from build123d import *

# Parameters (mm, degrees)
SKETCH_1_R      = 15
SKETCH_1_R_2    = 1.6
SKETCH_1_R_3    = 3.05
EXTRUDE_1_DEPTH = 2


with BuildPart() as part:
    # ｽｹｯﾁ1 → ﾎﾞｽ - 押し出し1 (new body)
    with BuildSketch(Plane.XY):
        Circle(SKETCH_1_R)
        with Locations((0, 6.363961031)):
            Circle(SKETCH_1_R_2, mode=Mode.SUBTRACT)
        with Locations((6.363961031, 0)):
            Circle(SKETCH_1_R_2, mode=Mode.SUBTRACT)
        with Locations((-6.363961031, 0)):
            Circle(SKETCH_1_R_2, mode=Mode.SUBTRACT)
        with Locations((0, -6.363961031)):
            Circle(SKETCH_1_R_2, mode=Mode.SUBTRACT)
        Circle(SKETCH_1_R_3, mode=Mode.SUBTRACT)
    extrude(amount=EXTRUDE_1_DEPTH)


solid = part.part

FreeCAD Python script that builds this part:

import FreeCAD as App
import Part
import Sketcher
from FreeCAD import Vector
Q = App.Units.Quantity

doc = App.newDocument("Part")
body = doc.addObject("PartDesign::Body", "Body")

sketch1 = body.newObject("Sketcher::SketchObject", "Sketch")
sketch1.AttachmentSupport = (doc.getObject("XY_Plane"), [""])
sketch1.MapMode = "FlatFace"
sketch1.addGeometry(Part.Circle(Vector(0, 0, 0), Vector(0, 0, 1), 15), False)
sketch1.addGeometry(Part.Circle(Vector(0, -6.363961, 0), Vector(0, 0, 1), 1.6), False)
sketch1.addGeometry(Part.Circle(Vector(-6.363961, 0, 0), Vector(0, 0, 1), 1.6), False)
sketch1.addGeometry(Part.Circle(Vector(0, 0, 0), Vector(0, 0, 1), 3.05), False)
sketch1.addGeometry(Part.Circle(Vector(6.363961, 0, 0), Vector(0, 0, 1), 1.6), False)
sketch1.addGeometry(Part.Circle(Vector(0, 6.363961, 0), Vector(0, 0, 1), 1.6), False)
sketch1.addConstraint(Sketcher.Constraint("Coincident", 0, 3, -1, 1))
sketch1.addConstraint(Sketcher.Constraint("Coincident", 3, 3, -1, 1))
sketch1.addConstraint(Sketcher.Constraint("Equal", 1, 2))
sketch1.addConstraint(Sketcher.Constraint("Equal", 2, 4))
sketch1.addConstraint(Sketcher.Constraint("Equal", 4, 5))
sketch1.addConstraint(Sketcher.Constraint("Symmetric", 2, 3, 4, 3, -1, 1))
sketch1.addConstraint(Sketcher.Constraint("Symmetric", 1, 3, 5, 3, -1, 1))
sketch1.addConstraint(Sketcher.Constraint("PointOnObject", 1, 3, -2))
sketch1.addConstraint(Sketcher.Constraint("PointOnObject", 2, 3, -1))
sketch1.addConstraint(Sketcher.Constraint("Diameter", 0, Q("30 mm")))
sketch1.addConstraint(Sketcher.Constraint("Diameter", 1, Q("3.2 mm")))
sketch1.addConstraint(Sketcher.Constraint("Diameter", 3, Q("6.1 mm")))
sketch1.addConstraint(Sketcher.Constraint("DistanceY", 1, 3, -1, 1, Q("6.363961 mm")))
sketch1.addConstraint(Sketcher.Constraint("DistanceX", 2, 3, -1, 1, Q("6.363961 mm")))
pad1 = body.newObject("PartDesign::Pad", "Pad")
pad1.Profile = sketch1
pad1.Length = 2

doc.recompute()
